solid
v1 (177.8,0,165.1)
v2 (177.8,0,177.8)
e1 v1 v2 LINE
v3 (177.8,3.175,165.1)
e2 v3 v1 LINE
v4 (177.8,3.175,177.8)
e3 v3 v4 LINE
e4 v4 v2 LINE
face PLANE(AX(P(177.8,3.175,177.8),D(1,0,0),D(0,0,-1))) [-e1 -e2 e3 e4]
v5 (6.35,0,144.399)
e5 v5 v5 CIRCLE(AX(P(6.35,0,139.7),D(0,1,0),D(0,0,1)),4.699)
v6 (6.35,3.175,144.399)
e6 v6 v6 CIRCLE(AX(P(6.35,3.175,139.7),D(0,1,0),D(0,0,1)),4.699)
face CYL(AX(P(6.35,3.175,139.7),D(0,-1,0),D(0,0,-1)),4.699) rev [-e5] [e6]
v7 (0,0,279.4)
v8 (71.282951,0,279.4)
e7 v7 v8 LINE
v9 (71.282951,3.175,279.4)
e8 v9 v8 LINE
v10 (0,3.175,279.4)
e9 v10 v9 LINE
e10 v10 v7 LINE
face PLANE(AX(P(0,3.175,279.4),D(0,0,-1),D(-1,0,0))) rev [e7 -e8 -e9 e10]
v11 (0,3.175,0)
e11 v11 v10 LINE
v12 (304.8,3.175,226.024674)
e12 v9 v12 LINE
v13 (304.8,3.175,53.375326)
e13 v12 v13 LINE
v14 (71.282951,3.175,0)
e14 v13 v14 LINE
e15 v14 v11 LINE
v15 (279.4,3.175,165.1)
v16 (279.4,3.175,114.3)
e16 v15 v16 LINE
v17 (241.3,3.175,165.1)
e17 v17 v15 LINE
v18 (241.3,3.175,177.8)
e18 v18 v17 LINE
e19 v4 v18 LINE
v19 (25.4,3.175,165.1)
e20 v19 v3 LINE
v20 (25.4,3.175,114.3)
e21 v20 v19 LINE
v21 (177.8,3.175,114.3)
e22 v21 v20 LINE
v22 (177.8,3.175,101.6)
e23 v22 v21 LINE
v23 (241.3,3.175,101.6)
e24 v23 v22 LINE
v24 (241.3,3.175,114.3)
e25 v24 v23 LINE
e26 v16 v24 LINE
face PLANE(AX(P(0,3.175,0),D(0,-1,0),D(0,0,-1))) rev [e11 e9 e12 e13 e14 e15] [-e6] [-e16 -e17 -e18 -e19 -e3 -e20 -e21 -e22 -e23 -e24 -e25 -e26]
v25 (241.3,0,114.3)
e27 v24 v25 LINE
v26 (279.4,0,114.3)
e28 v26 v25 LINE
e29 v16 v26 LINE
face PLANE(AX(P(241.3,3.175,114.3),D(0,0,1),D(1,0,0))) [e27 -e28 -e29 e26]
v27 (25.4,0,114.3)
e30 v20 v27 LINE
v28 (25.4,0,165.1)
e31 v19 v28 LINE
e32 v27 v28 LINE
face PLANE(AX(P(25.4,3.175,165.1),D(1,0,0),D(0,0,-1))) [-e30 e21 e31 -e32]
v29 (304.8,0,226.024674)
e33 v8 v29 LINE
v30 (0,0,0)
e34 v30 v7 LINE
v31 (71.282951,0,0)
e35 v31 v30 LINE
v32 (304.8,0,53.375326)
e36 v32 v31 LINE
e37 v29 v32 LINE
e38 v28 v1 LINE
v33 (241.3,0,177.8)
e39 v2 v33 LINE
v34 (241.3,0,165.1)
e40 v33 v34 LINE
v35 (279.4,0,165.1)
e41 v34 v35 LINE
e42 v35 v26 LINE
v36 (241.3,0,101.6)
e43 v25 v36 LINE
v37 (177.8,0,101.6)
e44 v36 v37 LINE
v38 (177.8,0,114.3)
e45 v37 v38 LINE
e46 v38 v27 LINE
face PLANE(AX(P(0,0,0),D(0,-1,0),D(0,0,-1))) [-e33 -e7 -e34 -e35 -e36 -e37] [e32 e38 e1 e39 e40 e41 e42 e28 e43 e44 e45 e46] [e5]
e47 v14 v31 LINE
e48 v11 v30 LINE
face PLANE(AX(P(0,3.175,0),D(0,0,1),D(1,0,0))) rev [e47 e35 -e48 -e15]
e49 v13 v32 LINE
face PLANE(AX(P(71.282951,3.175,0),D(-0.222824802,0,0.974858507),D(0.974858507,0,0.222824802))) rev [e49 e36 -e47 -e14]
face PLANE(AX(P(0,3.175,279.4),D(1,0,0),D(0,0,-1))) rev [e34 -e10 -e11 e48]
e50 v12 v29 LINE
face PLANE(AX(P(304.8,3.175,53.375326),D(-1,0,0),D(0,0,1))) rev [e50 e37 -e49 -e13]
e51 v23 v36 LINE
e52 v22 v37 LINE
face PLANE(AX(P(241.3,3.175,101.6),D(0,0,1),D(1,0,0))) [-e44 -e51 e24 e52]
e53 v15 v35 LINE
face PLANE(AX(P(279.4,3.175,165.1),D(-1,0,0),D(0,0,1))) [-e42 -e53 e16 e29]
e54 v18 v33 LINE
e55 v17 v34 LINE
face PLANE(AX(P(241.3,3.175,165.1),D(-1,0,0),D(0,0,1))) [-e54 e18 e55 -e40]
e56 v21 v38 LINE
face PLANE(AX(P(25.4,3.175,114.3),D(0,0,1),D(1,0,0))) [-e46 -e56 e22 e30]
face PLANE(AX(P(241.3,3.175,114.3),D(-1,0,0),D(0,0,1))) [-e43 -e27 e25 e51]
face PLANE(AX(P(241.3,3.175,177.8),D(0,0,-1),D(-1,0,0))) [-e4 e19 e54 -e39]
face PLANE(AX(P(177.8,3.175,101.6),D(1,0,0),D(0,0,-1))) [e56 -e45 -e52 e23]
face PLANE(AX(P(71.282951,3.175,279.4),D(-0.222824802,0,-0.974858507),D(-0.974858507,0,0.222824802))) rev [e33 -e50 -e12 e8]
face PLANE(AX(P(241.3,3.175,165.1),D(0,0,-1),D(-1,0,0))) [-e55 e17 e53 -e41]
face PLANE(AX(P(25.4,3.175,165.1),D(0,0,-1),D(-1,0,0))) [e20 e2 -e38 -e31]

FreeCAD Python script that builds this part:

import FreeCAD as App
import Part
import Sketcher

V = App.Vector
Q = App.Units.Quantity


def add_polygon(sketch, points):
    """Adds a closed chain of lines whose ends are joined by coincident constraints."""
    first, n = sketch.GeometryCount, len(points)
    for a, b in zip(points, points[1:] + points[:1]):
        sketch.addGeometry(Part.LineSegment(App.Vector(*a, 0), App.Vector(*b, 0)), False)
    for i in range(n):
        sketch.addConstraint(Sketcher.Constraint("Coincident", first + i, 2, first + (i + 1) % n, 1))

doc = App.newDocument("Part")
body = doc.addObject("PartDesign::Body", "Body")

# Sketch on XZ plane
sketch1 = doc.addObject("Sketcher::SketchObject", "Sketch")
body.addObject(sketch1)
sketch1.AttachmentSupport = (doc.XZ_Plane, [""])
sketch1.MapMode = "FlatFace"
add_polygon(sketch1, [(71.3, 0), (0, 0), (0, 279.4), (71.3, 279.4), (304.8, 226), (304.8, 53.4)])  # lines 0-5
add_polygon(sketch1, [(25.4, 165.1), (25.4, 114.3), (177.8, 114.3), (177.8, 101.6), (241.3, 101.6), (241.3, 114.3), (279.4, 114.3), (279.4, 165.1), (241.3, 165.1), (241.3, 177.8), (177.8, 177.8), (177.8, 165.1)])  # lines 6-17
sketch1.addGeometry(Part.Circle(V(6.3, 139.7, 0), V(0, 0, 1), 4.7), False)  # 18
sketch1.addConstraint(Sketcher.Constraint("Horizontal", 0))
sketch1.addConstraint(Sketcher.Constraint("Vertical", 1))
sketch1.addConstraint(Sketcher.Constraint("Horizontal", 2))
sketch1.addConstraint(Sketcher.Constraint("Vertical", 4))
sketch1.addConstraint(Sketcher.Constraint("Vertical", 6))
sketch1.addConstraint(Sketcher.Constraint("Horizontal", 7))
sketch1.addConstraint(Sketcher.Constraint("Vertical", 8))
sketch1.addConstraint(Sketcher.Constraint("Horizontal", 9))
sketch1.addConstraint(Sketcher.Constraint("Vertical", 10))
sketch1.addConstraint(Sketcher.Constraint("Horizontal", 11))
sketch1.addConstraint(Sketcher.Constraint("Vertical", 12))
sketch1.addConstraint(Sketcher.Constraint("Horizontal", 13))
sketch1.addConstraint(Sketcher.Constraint("Vertical", 14))
sketch1.addConstraint(Sketcher.Constraint("Horizontal", 15))
sketch1.addConstraint(Sketcher.Constraint("Vertical", 16))
sketch1.addConstraint(Sketcher.Constraint("Horizontal", 17))
sketch1.addConstraint(Sketcher.Constraint("Coincident", 0, 2, -1, 1))
sketch1.addConstraint(Sketcher.Constraint("Horizontal", 7, 2, 10, 2))
sketch1.addConstraint(Sketcher.Constraint("Horizontal", 13, 2, 16, 2))
sketch1.addConstraint(Sketcher.Constraint("Vertical", 2, 2, 5, 2))
sketch1.addConstraint(Sketcher.Constraint("Vertical", 10, 2, 13, 2))
sketch1.addConstraint(Sketcher.Constraint("Vertical", 8, 2, 15, 2))
sketch1.addConstraint(Sketcher.Constraint("Equal", 10, 14))
sketch1.addConstraint(Sketcher.Constraint("Equal", 3, 5))
sketch1.addConstraint(Sketcher.Constraint("Diameter", 18, Q("0.37 in")))
sketch1.addConstraint(Sketcher.Constraint("DistanceX", 7, 1, 7, 2, Q("6 in")))
sketch1.addConstraint(Sketcher.Constraint("DistanceY", 1, 1, 1, 2, Q("11 in")))
sketch1.addConstraint(Sketcher.Constraint("DistanceY", 6, 2, 6, 1, Q("2 in")))
sketch1.addConstraint(Sketcher.Constraint("DistanceX", 9, 1, 9, 2, Q("2.5 in")))
sketch1.addConstraint(Sketcher.Constraint("DistanceX", 11, 1, 11, 2, Q("1.5 in")))
sketch1.addConstraint(Sketcher.Constraint("DistanceY", 8, 2, 8, 1, Q("0.5 in")))
sketch1.addConstraint(Sketcher.Constraint("DistanceX", -1, 1, 3, 2, Q("12 in")))
sketch1.addConstraint(Sketcher.Constraint("DistanceX", -1, 1, 6, 2, Q("1 in")))
sketch1.addConstraint(Sketcher.Constraint("DistanceY", -1, 1, 8, 2, Q("4 in")))
sketch1.addConstraint(Sketcher.Constraint("DistanceY", 6, 2, 18, 3, Q("1 in")))
sketch1.addConstraint(Sketcher.Constraint("DistanceX", -1, 1, 18, 3, Q("0.25 in")))
sketch1.addConstraint(Sketcher.Constraint("DistanceX", 0, 2, 0, 1, 71.282951))
sketch1.addConstraint(Sketcher.Constraint("DistanceY", 4, 2, 4, 1, 172.649349))
pad1 = doc.addObject("PartDesign::Pad", "Pad")
body.addObject(pad1)
pad1.Profile = sketch1
pad1.Length = Q("0.125 in")
pad1.Reversed = True

doc.recompute()
